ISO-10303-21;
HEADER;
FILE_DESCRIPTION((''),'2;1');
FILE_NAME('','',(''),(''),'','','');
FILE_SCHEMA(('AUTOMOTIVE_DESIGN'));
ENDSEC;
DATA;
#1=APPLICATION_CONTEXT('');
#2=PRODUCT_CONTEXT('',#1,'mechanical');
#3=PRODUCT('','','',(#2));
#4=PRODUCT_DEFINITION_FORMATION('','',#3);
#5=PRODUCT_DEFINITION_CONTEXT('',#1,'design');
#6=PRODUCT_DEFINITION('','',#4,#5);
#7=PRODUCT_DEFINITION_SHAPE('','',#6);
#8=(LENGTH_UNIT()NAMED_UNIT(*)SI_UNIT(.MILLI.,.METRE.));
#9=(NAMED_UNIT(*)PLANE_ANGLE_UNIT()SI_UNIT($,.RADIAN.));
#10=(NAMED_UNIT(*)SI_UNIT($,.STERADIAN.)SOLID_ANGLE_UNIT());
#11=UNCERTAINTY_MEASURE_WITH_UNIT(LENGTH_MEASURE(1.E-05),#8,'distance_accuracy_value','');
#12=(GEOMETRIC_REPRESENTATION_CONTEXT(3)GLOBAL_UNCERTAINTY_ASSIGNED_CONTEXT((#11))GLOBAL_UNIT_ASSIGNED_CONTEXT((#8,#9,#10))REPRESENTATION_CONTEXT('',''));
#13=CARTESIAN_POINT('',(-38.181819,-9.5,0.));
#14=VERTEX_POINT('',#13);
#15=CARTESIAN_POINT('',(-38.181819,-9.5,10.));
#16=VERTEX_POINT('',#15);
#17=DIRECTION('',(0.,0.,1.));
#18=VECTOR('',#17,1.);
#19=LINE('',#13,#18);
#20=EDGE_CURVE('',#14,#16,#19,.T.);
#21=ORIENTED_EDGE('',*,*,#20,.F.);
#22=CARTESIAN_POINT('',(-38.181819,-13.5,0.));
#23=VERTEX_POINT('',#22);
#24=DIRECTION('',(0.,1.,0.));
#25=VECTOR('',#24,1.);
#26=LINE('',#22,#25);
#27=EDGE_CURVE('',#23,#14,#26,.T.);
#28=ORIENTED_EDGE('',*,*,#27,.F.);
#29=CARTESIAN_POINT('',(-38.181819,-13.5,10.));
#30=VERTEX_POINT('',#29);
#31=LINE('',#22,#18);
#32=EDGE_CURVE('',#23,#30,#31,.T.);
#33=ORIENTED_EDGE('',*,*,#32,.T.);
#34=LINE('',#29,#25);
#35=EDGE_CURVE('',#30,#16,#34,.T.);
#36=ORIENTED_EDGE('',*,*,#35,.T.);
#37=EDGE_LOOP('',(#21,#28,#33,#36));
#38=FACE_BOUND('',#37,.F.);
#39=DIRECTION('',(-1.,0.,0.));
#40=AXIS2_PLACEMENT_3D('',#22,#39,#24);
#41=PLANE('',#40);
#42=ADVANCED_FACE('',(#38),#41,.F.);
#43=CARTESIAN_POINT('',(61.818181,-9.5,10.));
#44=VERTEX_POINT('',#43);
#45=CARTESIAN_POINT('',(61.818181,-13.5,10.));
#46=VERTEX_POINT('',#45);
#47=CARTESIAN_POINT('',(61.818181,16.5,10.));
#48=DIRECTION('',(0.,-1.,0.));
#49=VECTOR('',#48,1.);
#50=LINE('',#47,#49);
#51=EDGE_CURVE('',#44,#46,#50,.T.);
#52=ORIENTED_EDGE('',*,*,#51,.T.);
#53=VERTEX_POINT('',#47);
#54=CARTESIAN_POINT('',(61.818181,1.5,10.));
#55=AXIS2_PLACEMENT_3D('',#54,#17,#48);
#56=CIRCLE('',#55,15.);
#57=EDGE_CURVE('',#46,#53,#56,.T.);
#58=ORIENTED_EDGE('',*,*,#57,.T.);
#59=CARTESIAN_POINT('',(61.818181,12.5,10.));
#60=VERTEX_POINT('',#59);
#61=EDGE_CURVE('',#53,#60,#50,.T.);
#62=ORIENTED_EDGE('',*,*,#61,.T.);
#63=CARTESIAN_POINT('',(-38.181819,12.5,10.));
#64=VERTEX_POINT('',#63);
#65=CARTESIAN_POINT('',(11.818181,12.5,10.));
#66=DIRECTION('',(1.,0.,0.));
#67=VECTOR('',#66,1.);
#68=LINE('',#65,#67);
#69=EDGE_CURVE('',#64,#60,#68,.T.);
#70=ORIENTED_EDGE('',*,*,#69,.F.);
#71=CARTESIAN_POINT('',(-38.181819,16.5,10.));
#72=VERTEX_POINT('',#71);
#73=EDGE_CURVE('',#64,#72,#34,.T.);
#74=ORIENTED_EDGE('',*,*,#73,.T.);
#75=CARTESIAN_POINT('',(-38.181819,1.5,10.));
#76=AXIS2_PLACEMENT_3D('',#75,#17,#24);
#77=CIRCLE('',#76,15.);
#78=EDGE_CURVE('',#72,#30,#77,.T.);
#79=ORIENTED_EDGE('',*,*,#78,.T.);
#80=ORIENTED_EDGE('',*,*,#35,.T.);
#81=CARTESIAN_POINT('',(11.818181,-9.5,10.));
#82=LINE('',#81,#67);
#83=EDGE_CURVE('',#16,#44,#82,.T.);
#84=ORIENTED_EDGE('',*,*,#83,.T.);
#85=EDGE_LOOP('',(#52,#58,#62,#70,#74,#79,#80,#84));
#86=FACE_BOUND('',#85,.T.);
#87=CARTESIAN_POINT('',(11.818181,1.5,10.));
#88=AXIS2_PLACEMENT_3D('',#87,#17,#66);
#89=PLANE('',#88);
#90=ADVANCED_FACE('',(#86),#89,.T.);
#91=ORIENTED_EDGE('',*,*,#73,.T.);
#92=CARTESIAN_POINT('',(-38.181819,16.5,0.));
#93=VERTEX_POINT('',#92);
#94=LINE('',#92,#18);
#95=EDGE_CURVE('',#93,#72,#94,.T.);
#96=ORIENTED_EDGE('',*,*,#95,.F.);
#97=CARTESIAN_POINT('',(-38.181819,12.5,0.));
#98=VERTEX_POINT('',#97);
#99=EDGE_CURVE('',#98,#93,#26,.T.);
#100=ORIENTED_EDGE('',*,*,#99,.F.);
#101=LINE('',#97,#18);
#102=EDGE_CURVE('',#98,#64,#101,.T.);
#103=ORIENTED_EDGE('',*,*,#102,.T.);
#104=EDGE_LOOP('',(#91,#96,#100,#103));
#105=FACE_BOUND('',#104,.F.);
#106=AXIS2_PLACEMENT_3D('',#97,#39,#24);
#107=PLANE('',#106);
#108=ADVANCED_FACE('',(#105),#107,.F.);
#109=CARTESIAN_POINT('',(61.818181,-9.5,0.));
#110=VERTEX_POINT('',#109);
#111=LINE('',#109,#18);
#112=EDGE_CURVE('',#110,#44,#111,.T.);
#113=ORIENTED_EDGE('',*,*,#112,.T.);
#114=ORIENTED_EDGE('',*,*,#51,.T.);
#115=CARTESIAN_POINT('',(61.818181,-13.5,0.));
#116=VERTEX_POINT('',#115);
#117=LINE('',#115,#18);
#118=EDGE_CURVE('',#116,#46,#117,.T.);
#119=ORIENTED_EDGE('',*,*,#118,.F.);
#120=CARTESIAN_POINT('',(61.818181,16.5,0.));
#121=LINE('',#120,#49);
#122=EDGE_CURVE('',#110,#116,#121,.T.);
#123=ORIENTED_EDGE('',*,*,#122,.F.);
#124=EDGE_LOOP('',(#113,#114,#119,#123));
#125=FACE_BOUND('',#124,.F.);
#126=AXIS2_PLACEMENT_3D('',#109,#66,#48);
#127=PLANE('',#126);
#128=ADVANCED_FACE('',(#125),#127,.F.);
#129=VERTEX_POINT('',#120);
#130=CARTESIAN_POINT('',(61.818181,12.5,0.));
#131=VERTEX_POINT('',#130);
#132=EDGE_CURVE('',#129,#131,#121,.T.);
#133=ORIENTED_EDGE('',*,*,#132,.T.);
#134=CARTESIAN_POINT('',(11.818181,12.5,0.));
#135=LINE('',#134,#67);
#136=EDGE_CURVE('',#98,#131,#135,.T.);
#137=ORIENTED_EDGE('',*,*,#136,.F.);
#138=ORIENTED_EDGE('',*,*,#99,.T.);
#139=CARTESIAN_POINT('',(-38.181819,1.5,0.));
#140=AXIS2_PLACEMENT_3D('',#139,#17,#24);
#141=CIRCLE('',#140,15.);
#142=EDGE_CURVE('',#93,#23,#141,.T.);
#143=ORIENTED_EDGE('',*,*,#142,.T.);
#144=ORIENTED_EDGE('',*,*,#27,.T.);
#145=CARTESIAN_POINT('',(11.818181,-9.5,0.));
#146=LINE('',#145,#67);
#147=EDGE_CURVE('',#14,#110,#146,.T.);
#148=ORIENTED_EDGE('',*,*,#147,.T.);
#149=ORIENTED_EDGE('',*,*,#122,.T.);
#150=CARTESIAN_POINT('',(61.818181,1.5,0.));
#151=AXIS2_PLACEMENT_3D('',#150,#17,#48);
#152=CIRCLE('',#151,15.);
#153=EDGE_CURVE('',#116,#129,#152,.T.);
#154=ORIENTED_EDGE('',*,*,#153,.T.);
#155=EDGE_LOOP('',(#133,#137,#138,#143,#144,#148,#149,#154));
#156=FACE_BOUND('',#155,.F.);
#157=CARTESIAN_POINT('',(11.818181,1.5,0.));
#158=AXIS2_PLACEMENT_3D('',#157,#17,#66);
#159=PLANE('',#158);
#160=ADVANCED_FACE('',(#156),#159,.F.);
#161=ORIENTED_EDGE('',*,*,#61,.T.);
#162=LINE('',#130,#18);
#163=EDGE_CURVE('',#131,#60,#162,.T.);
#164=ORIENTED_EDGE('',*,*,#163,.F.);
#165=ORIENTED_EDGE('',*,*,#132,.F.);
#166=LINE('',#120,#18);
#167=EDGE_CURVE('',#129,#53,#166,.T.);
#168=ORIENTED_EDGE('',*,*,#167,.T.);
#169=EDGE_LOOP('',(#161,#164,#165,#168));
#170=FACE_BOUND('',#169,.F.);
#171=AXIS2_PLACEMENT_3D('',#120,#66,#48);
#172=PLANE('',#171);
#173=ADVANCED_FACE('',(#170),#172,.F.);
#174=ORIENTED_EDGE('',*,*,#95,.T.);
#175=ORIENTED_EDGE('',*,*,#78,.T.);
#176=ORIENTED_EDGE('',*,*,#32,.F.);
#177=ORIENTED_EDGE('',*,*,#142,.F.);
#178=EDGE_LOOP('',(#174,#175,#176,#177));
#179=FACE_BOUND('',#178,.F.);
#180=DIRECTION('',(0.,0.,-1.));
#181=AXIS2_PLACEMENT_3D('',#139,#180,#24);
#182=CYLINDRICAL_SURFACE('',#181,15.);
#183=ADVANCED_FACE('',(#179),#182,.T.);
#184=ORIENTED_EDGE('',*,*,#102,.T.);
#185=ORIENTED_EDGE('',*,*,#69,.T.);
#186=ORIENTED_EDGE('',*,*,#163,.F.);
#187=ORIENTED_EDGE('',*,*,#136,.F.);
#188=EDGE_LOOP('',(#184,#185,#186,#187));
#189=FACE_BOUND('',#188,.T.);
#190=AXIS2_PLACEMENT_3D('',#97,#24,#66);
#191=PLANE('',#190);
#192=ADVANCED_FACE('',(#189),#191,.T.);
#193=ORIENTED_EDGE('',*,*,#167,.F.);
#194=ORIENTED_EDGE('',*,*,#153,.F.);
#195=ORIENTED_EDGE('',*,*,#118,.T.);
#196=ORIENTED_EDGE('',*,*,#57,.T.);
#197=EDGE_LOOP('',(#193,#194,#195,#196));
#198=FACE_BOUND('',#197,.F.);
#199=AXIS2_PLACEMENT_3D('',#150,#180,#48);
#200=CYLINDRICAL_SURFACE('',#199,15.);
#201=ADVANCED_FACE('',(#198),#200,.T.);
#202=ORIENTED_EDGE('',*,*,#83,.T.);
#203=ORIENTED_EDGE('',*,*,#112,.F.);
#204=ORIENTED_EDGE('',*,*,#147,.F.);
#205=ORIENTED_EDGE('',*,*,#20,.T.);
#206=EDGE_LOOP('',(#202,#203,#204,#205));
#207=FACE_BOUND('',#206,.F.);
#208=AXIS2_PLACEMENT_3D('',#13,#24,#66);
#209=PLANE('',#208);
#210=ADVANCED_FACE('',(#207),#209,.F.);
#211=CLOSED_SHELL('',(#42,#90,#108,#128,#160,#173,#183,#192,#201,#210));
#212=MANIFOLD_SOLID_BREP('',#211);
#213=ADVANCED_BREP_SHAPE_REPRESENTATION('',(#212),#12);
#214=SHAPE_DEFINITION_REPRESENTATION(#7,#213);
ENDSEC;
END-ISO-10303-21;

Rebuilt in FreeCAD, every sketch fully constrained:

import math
import FreeCAD as App
import Part
import Sketcher

doc = App.newDocument("Part")
body = doc.addObject("PartDesign::Body", "Body")

sketch1 = body.newObject("Sketcher::SketchObject", "Sketch")
sketch1.AttachmentSupport = (doc.getObject("XY_Plane"), [""])
sketch1.MapMode = "FlatFace"
sketch1.addGeometry(Part.LineSegment(App.Vector(-38.181819, -9.5, 0), App.Vector(61.818181, -9.5, 0)), False)
sketch1.addGeometry(Part.LineSegment(App.Vector(61.818181, -9.5, 0), App.Vector(61.818181, -13.5, 0)), False)
sketch1.addGeometry(Part.ArcOfCircle(Part.Circle(App.Vector(61.818181, 1.5, 0), App.Vector(0, 0, 1), 15), math.radians(-90), math.radians(90)), False)
sketch1.addGeometry(Part.LineSegment(App.Vector(61.818181, 16.5, 0), App.Vector(61.818181, 12.5, 0)), False)
sketch1.addGeometry(Part.LineSegment(App.Vector(61.818181, 12.5, 0), App.Vector(-38.181819, 12.5, 0)), False)
sketch1.addGeometry(Part.LineSegment(App.Vector(-38.181819, 12.5, 0), App.Vector(-38.181819, 16.5, 0)), False)
sketch1.addGeometry(Part.ArcOfCircle(Part.Circle(App.Vector(-38.181819, 1.5, 0), App.Vector(0, 0, 1), 15), math.radians(90), math.radians(270)), False)
sketch1.addGeometry(Part.LineSegment(App.Vector(-38.181819, -13.5, 0), App.Vector(-38.181819, -9.5, 0)), False)
sketch1.addConstraint(Sketcher.Constraint("Coincident", 0, 2, 1, 1))
sketch1.addConstraint(Sketcher.Constraint("Coincident", 1, 2, 2, 1))
sketch1.addConstraint(Sketcher.Constraint("Coincident", 2, 2, 3, 1))
sketch1.addConstraint(Sketcher.Constraint("Coincident", 3, 2, 4, 1))
sketch1.addConstraint(Sketcher.Constraint("Coincident", 4, 2, 5, 1))
sketch1.addConstraint(Sketcher.Constraint("Coincident", 5, 2, 6, 1))
sketch1.addConstraint(Sketcher.Constraint("Coincident", 6, 2, 7, 1))
sketch1.addConstraint(Sketcher.Constraint("Coincident", 7, 2, 0, 1))
sketch1.addConstraint(Sketcher.Constraint("Horizontal", 0))
sketch1.addConstraint(Sketcher.Constraint("Vertical", 1))
sketch1.addConstraint(Sketcher.Constraint("Vertical", 3))
sketch1.addConstraint(Sketcher.Constraint("Horizontal", 4))
sketch1.addConstraint(Sketcher.Constraint("Vertical", 5))
sketch1.addConstraint(Sketcher.Constraint("Vertical", 7))
sketch1.addConstraint(Sketcher.Constraint("Equal", 2, 6))
sketch1.addConstraint(Sketcher.Constraint("Horizontal", 2, 3, 6, 3))
sketch1.addConstraint(Sketcher.Constraint("Vertical", 2, 3, 0, 2))
sketch1.addConstraint(Sketcher.Constraint("Vertical", 1, 2, 2, 2))
sketch1.addConstraint(Sketcher.Constraint("Vertical", 6, 3, 4, 2))
sketch1.addConstraint(Sketcher.Constraint("Vertical", 5, 2, 6, 2))
sketch1.addConstraint(Sketcher.Constraint("Equal", 1, 3))
sketch1.addConstraint(Sketcher.Constraint("Radius", 2, 15.0))
sketch1.addConstraint(Sketcher.Constraint("DistanceX", 0, 1, 0, 2, 100.0))
sketch1.addConstraint(Sketcher.Constraint("DistanceY", 1, 2, 1, 1, 4.0))
sketch1.addConstraint(Sketcher.Constraint("DistanceY", -1, 1, 2, 3, 1.5))
sketch1.addConstraint(Sketcher.Constraint("DistanceX", -1, 1, 2, 3, 61.818181))
pad1 = body.newObject("PartDesign::Pad", "Pad")
pad1.Profile = sketch1
pad1.Length = 10

doc.recompute()
